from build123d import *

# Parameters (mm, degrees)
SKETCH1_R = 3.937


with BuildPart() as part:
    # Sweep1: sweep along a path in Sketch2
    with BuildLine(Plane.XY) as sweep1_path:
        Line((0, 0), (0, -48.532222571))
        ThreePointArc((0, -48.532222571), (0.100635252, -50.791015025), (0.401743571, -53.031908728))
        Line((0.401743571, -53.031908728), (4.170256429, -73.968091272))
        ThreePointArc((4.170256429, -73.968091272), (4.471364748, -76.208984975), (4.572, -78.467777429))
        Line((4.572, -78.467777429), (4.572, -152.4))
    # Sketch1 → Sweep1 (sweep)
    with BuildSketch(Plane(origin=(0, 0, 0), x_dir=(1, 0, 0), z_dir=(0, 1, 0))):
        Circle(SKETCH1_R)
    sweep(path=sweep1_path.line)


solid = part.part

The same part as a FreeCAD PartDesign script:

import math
import FreeCAD as App
import Part
import Sketcher

V = App.Vector
Q = App.Units.Quantity

doc = App.newDocument("Part")
body = doc.addObject("PartDesign::Body", "Body")

sketch1 = body.newObject("Sketcher::SketchObject", "Sketch")
sketch1.AttachmentSupport = (doc.getObject("XZ_Plane"), [""])
sketch1.MapMode = "FlatFace"
sketch1.addGeometry(Part.Circle(V(0, 0, 0), V(0, 0, 1), 3.9), False)
sketch1.addConstraint(Sketcher.Constraint("Coincident", 0, 3, -1, 1))
sketch1.addConstraint(Sketcher.Constraint("Diameter", 0, Q("0.31 in")))

sketch2 = body.newObject("Sketcher::SketchObject", "Sketch001")
sketch2.AttachmentSupport = (doc.getObject("XY_Plane"), [""])
sketch2.MapMode = "FlatFace"
sketch2.addGeometry(Part.LineSegment(V(0, 0, 0), V(0, -48.5, 0)), False)
sketch2.addGeometry(Part.ArcOfCircle(Part.Circle(V(25.4, -48.5, 0), V(0, 0, 1), 25.4), math.radians(180), math.radians(190.2)), False)
sketch2.addGeometry(Part.LineSegment(V(0.4, -53, 0), V(4.2, -74, 0)), False)
sketch2.addGeometry(Part.ArcOfCircle(Part.Circle(V(-20.8, -78.5, 0), V(0, 0, 1), 25.4), math.radians(0), math.radians(10.2)), False)
sketch2.addGeometry(Part.LineSegment(V(4.6, -78.5, 0), V(4.6, -152.4, 0)), False)
sketch2.addConstraint(Sketcher.Constraint("Tangent", 0, 2, 1, 1))
sketch2.addConstraint(Sketcher.Constraint("Tangent", 1, 2, 2, 1))
sketch2.addConstraint(Sketcher.Constraint("Tangent", 2, 2, 3, 2))
sketch2.addConstraint(Sketcher.Constraint("Tangent", 3, 1, 4, 1))
sketch2.addConstraint(Sketcher.Constraint("Vertical", 0))
sketch2.addConstraint(Sketcher.Constraint("Vertical", 4))
sketch2.addConstraint(Sketcher.Constraint("Coincident", 0, 1, -1, 1))
sketch2.addConstraint(Sketcher.Constraint("Equal", 1, 3))
sketch2.addConstraint(Sketcher.Constraint("Radius", 1, Q("1 in")))
sketch2.addConstraint(Sketcher.Constraint("DistanceY", 4, 2, -1, 1, Q("6 in")))
sketch2.addConstraint(Sketcher.Constraint("DistanceX", 3, 3, -1, 1, Q("0.82 in")))
sketch2.addConstraint(Sketcher.Constraint("DistanceY", 0, 2, 0, 1, 48.532223))
sketch2.addConstraint(Sketcher.Constraint("DistanceY", 4, 2, 4, 1, 73.932223))
doc.recompute()

additivepipe = body.newObject("PartDesign::AdditivePipe", "AdditivePipe")
additivepipe.Profile = sketch1
additivepipe.Spine = (sketch2, ["Edge1", "Edge2", "Edge3", "Edge4", "Edge5"])

doc.recompute()
